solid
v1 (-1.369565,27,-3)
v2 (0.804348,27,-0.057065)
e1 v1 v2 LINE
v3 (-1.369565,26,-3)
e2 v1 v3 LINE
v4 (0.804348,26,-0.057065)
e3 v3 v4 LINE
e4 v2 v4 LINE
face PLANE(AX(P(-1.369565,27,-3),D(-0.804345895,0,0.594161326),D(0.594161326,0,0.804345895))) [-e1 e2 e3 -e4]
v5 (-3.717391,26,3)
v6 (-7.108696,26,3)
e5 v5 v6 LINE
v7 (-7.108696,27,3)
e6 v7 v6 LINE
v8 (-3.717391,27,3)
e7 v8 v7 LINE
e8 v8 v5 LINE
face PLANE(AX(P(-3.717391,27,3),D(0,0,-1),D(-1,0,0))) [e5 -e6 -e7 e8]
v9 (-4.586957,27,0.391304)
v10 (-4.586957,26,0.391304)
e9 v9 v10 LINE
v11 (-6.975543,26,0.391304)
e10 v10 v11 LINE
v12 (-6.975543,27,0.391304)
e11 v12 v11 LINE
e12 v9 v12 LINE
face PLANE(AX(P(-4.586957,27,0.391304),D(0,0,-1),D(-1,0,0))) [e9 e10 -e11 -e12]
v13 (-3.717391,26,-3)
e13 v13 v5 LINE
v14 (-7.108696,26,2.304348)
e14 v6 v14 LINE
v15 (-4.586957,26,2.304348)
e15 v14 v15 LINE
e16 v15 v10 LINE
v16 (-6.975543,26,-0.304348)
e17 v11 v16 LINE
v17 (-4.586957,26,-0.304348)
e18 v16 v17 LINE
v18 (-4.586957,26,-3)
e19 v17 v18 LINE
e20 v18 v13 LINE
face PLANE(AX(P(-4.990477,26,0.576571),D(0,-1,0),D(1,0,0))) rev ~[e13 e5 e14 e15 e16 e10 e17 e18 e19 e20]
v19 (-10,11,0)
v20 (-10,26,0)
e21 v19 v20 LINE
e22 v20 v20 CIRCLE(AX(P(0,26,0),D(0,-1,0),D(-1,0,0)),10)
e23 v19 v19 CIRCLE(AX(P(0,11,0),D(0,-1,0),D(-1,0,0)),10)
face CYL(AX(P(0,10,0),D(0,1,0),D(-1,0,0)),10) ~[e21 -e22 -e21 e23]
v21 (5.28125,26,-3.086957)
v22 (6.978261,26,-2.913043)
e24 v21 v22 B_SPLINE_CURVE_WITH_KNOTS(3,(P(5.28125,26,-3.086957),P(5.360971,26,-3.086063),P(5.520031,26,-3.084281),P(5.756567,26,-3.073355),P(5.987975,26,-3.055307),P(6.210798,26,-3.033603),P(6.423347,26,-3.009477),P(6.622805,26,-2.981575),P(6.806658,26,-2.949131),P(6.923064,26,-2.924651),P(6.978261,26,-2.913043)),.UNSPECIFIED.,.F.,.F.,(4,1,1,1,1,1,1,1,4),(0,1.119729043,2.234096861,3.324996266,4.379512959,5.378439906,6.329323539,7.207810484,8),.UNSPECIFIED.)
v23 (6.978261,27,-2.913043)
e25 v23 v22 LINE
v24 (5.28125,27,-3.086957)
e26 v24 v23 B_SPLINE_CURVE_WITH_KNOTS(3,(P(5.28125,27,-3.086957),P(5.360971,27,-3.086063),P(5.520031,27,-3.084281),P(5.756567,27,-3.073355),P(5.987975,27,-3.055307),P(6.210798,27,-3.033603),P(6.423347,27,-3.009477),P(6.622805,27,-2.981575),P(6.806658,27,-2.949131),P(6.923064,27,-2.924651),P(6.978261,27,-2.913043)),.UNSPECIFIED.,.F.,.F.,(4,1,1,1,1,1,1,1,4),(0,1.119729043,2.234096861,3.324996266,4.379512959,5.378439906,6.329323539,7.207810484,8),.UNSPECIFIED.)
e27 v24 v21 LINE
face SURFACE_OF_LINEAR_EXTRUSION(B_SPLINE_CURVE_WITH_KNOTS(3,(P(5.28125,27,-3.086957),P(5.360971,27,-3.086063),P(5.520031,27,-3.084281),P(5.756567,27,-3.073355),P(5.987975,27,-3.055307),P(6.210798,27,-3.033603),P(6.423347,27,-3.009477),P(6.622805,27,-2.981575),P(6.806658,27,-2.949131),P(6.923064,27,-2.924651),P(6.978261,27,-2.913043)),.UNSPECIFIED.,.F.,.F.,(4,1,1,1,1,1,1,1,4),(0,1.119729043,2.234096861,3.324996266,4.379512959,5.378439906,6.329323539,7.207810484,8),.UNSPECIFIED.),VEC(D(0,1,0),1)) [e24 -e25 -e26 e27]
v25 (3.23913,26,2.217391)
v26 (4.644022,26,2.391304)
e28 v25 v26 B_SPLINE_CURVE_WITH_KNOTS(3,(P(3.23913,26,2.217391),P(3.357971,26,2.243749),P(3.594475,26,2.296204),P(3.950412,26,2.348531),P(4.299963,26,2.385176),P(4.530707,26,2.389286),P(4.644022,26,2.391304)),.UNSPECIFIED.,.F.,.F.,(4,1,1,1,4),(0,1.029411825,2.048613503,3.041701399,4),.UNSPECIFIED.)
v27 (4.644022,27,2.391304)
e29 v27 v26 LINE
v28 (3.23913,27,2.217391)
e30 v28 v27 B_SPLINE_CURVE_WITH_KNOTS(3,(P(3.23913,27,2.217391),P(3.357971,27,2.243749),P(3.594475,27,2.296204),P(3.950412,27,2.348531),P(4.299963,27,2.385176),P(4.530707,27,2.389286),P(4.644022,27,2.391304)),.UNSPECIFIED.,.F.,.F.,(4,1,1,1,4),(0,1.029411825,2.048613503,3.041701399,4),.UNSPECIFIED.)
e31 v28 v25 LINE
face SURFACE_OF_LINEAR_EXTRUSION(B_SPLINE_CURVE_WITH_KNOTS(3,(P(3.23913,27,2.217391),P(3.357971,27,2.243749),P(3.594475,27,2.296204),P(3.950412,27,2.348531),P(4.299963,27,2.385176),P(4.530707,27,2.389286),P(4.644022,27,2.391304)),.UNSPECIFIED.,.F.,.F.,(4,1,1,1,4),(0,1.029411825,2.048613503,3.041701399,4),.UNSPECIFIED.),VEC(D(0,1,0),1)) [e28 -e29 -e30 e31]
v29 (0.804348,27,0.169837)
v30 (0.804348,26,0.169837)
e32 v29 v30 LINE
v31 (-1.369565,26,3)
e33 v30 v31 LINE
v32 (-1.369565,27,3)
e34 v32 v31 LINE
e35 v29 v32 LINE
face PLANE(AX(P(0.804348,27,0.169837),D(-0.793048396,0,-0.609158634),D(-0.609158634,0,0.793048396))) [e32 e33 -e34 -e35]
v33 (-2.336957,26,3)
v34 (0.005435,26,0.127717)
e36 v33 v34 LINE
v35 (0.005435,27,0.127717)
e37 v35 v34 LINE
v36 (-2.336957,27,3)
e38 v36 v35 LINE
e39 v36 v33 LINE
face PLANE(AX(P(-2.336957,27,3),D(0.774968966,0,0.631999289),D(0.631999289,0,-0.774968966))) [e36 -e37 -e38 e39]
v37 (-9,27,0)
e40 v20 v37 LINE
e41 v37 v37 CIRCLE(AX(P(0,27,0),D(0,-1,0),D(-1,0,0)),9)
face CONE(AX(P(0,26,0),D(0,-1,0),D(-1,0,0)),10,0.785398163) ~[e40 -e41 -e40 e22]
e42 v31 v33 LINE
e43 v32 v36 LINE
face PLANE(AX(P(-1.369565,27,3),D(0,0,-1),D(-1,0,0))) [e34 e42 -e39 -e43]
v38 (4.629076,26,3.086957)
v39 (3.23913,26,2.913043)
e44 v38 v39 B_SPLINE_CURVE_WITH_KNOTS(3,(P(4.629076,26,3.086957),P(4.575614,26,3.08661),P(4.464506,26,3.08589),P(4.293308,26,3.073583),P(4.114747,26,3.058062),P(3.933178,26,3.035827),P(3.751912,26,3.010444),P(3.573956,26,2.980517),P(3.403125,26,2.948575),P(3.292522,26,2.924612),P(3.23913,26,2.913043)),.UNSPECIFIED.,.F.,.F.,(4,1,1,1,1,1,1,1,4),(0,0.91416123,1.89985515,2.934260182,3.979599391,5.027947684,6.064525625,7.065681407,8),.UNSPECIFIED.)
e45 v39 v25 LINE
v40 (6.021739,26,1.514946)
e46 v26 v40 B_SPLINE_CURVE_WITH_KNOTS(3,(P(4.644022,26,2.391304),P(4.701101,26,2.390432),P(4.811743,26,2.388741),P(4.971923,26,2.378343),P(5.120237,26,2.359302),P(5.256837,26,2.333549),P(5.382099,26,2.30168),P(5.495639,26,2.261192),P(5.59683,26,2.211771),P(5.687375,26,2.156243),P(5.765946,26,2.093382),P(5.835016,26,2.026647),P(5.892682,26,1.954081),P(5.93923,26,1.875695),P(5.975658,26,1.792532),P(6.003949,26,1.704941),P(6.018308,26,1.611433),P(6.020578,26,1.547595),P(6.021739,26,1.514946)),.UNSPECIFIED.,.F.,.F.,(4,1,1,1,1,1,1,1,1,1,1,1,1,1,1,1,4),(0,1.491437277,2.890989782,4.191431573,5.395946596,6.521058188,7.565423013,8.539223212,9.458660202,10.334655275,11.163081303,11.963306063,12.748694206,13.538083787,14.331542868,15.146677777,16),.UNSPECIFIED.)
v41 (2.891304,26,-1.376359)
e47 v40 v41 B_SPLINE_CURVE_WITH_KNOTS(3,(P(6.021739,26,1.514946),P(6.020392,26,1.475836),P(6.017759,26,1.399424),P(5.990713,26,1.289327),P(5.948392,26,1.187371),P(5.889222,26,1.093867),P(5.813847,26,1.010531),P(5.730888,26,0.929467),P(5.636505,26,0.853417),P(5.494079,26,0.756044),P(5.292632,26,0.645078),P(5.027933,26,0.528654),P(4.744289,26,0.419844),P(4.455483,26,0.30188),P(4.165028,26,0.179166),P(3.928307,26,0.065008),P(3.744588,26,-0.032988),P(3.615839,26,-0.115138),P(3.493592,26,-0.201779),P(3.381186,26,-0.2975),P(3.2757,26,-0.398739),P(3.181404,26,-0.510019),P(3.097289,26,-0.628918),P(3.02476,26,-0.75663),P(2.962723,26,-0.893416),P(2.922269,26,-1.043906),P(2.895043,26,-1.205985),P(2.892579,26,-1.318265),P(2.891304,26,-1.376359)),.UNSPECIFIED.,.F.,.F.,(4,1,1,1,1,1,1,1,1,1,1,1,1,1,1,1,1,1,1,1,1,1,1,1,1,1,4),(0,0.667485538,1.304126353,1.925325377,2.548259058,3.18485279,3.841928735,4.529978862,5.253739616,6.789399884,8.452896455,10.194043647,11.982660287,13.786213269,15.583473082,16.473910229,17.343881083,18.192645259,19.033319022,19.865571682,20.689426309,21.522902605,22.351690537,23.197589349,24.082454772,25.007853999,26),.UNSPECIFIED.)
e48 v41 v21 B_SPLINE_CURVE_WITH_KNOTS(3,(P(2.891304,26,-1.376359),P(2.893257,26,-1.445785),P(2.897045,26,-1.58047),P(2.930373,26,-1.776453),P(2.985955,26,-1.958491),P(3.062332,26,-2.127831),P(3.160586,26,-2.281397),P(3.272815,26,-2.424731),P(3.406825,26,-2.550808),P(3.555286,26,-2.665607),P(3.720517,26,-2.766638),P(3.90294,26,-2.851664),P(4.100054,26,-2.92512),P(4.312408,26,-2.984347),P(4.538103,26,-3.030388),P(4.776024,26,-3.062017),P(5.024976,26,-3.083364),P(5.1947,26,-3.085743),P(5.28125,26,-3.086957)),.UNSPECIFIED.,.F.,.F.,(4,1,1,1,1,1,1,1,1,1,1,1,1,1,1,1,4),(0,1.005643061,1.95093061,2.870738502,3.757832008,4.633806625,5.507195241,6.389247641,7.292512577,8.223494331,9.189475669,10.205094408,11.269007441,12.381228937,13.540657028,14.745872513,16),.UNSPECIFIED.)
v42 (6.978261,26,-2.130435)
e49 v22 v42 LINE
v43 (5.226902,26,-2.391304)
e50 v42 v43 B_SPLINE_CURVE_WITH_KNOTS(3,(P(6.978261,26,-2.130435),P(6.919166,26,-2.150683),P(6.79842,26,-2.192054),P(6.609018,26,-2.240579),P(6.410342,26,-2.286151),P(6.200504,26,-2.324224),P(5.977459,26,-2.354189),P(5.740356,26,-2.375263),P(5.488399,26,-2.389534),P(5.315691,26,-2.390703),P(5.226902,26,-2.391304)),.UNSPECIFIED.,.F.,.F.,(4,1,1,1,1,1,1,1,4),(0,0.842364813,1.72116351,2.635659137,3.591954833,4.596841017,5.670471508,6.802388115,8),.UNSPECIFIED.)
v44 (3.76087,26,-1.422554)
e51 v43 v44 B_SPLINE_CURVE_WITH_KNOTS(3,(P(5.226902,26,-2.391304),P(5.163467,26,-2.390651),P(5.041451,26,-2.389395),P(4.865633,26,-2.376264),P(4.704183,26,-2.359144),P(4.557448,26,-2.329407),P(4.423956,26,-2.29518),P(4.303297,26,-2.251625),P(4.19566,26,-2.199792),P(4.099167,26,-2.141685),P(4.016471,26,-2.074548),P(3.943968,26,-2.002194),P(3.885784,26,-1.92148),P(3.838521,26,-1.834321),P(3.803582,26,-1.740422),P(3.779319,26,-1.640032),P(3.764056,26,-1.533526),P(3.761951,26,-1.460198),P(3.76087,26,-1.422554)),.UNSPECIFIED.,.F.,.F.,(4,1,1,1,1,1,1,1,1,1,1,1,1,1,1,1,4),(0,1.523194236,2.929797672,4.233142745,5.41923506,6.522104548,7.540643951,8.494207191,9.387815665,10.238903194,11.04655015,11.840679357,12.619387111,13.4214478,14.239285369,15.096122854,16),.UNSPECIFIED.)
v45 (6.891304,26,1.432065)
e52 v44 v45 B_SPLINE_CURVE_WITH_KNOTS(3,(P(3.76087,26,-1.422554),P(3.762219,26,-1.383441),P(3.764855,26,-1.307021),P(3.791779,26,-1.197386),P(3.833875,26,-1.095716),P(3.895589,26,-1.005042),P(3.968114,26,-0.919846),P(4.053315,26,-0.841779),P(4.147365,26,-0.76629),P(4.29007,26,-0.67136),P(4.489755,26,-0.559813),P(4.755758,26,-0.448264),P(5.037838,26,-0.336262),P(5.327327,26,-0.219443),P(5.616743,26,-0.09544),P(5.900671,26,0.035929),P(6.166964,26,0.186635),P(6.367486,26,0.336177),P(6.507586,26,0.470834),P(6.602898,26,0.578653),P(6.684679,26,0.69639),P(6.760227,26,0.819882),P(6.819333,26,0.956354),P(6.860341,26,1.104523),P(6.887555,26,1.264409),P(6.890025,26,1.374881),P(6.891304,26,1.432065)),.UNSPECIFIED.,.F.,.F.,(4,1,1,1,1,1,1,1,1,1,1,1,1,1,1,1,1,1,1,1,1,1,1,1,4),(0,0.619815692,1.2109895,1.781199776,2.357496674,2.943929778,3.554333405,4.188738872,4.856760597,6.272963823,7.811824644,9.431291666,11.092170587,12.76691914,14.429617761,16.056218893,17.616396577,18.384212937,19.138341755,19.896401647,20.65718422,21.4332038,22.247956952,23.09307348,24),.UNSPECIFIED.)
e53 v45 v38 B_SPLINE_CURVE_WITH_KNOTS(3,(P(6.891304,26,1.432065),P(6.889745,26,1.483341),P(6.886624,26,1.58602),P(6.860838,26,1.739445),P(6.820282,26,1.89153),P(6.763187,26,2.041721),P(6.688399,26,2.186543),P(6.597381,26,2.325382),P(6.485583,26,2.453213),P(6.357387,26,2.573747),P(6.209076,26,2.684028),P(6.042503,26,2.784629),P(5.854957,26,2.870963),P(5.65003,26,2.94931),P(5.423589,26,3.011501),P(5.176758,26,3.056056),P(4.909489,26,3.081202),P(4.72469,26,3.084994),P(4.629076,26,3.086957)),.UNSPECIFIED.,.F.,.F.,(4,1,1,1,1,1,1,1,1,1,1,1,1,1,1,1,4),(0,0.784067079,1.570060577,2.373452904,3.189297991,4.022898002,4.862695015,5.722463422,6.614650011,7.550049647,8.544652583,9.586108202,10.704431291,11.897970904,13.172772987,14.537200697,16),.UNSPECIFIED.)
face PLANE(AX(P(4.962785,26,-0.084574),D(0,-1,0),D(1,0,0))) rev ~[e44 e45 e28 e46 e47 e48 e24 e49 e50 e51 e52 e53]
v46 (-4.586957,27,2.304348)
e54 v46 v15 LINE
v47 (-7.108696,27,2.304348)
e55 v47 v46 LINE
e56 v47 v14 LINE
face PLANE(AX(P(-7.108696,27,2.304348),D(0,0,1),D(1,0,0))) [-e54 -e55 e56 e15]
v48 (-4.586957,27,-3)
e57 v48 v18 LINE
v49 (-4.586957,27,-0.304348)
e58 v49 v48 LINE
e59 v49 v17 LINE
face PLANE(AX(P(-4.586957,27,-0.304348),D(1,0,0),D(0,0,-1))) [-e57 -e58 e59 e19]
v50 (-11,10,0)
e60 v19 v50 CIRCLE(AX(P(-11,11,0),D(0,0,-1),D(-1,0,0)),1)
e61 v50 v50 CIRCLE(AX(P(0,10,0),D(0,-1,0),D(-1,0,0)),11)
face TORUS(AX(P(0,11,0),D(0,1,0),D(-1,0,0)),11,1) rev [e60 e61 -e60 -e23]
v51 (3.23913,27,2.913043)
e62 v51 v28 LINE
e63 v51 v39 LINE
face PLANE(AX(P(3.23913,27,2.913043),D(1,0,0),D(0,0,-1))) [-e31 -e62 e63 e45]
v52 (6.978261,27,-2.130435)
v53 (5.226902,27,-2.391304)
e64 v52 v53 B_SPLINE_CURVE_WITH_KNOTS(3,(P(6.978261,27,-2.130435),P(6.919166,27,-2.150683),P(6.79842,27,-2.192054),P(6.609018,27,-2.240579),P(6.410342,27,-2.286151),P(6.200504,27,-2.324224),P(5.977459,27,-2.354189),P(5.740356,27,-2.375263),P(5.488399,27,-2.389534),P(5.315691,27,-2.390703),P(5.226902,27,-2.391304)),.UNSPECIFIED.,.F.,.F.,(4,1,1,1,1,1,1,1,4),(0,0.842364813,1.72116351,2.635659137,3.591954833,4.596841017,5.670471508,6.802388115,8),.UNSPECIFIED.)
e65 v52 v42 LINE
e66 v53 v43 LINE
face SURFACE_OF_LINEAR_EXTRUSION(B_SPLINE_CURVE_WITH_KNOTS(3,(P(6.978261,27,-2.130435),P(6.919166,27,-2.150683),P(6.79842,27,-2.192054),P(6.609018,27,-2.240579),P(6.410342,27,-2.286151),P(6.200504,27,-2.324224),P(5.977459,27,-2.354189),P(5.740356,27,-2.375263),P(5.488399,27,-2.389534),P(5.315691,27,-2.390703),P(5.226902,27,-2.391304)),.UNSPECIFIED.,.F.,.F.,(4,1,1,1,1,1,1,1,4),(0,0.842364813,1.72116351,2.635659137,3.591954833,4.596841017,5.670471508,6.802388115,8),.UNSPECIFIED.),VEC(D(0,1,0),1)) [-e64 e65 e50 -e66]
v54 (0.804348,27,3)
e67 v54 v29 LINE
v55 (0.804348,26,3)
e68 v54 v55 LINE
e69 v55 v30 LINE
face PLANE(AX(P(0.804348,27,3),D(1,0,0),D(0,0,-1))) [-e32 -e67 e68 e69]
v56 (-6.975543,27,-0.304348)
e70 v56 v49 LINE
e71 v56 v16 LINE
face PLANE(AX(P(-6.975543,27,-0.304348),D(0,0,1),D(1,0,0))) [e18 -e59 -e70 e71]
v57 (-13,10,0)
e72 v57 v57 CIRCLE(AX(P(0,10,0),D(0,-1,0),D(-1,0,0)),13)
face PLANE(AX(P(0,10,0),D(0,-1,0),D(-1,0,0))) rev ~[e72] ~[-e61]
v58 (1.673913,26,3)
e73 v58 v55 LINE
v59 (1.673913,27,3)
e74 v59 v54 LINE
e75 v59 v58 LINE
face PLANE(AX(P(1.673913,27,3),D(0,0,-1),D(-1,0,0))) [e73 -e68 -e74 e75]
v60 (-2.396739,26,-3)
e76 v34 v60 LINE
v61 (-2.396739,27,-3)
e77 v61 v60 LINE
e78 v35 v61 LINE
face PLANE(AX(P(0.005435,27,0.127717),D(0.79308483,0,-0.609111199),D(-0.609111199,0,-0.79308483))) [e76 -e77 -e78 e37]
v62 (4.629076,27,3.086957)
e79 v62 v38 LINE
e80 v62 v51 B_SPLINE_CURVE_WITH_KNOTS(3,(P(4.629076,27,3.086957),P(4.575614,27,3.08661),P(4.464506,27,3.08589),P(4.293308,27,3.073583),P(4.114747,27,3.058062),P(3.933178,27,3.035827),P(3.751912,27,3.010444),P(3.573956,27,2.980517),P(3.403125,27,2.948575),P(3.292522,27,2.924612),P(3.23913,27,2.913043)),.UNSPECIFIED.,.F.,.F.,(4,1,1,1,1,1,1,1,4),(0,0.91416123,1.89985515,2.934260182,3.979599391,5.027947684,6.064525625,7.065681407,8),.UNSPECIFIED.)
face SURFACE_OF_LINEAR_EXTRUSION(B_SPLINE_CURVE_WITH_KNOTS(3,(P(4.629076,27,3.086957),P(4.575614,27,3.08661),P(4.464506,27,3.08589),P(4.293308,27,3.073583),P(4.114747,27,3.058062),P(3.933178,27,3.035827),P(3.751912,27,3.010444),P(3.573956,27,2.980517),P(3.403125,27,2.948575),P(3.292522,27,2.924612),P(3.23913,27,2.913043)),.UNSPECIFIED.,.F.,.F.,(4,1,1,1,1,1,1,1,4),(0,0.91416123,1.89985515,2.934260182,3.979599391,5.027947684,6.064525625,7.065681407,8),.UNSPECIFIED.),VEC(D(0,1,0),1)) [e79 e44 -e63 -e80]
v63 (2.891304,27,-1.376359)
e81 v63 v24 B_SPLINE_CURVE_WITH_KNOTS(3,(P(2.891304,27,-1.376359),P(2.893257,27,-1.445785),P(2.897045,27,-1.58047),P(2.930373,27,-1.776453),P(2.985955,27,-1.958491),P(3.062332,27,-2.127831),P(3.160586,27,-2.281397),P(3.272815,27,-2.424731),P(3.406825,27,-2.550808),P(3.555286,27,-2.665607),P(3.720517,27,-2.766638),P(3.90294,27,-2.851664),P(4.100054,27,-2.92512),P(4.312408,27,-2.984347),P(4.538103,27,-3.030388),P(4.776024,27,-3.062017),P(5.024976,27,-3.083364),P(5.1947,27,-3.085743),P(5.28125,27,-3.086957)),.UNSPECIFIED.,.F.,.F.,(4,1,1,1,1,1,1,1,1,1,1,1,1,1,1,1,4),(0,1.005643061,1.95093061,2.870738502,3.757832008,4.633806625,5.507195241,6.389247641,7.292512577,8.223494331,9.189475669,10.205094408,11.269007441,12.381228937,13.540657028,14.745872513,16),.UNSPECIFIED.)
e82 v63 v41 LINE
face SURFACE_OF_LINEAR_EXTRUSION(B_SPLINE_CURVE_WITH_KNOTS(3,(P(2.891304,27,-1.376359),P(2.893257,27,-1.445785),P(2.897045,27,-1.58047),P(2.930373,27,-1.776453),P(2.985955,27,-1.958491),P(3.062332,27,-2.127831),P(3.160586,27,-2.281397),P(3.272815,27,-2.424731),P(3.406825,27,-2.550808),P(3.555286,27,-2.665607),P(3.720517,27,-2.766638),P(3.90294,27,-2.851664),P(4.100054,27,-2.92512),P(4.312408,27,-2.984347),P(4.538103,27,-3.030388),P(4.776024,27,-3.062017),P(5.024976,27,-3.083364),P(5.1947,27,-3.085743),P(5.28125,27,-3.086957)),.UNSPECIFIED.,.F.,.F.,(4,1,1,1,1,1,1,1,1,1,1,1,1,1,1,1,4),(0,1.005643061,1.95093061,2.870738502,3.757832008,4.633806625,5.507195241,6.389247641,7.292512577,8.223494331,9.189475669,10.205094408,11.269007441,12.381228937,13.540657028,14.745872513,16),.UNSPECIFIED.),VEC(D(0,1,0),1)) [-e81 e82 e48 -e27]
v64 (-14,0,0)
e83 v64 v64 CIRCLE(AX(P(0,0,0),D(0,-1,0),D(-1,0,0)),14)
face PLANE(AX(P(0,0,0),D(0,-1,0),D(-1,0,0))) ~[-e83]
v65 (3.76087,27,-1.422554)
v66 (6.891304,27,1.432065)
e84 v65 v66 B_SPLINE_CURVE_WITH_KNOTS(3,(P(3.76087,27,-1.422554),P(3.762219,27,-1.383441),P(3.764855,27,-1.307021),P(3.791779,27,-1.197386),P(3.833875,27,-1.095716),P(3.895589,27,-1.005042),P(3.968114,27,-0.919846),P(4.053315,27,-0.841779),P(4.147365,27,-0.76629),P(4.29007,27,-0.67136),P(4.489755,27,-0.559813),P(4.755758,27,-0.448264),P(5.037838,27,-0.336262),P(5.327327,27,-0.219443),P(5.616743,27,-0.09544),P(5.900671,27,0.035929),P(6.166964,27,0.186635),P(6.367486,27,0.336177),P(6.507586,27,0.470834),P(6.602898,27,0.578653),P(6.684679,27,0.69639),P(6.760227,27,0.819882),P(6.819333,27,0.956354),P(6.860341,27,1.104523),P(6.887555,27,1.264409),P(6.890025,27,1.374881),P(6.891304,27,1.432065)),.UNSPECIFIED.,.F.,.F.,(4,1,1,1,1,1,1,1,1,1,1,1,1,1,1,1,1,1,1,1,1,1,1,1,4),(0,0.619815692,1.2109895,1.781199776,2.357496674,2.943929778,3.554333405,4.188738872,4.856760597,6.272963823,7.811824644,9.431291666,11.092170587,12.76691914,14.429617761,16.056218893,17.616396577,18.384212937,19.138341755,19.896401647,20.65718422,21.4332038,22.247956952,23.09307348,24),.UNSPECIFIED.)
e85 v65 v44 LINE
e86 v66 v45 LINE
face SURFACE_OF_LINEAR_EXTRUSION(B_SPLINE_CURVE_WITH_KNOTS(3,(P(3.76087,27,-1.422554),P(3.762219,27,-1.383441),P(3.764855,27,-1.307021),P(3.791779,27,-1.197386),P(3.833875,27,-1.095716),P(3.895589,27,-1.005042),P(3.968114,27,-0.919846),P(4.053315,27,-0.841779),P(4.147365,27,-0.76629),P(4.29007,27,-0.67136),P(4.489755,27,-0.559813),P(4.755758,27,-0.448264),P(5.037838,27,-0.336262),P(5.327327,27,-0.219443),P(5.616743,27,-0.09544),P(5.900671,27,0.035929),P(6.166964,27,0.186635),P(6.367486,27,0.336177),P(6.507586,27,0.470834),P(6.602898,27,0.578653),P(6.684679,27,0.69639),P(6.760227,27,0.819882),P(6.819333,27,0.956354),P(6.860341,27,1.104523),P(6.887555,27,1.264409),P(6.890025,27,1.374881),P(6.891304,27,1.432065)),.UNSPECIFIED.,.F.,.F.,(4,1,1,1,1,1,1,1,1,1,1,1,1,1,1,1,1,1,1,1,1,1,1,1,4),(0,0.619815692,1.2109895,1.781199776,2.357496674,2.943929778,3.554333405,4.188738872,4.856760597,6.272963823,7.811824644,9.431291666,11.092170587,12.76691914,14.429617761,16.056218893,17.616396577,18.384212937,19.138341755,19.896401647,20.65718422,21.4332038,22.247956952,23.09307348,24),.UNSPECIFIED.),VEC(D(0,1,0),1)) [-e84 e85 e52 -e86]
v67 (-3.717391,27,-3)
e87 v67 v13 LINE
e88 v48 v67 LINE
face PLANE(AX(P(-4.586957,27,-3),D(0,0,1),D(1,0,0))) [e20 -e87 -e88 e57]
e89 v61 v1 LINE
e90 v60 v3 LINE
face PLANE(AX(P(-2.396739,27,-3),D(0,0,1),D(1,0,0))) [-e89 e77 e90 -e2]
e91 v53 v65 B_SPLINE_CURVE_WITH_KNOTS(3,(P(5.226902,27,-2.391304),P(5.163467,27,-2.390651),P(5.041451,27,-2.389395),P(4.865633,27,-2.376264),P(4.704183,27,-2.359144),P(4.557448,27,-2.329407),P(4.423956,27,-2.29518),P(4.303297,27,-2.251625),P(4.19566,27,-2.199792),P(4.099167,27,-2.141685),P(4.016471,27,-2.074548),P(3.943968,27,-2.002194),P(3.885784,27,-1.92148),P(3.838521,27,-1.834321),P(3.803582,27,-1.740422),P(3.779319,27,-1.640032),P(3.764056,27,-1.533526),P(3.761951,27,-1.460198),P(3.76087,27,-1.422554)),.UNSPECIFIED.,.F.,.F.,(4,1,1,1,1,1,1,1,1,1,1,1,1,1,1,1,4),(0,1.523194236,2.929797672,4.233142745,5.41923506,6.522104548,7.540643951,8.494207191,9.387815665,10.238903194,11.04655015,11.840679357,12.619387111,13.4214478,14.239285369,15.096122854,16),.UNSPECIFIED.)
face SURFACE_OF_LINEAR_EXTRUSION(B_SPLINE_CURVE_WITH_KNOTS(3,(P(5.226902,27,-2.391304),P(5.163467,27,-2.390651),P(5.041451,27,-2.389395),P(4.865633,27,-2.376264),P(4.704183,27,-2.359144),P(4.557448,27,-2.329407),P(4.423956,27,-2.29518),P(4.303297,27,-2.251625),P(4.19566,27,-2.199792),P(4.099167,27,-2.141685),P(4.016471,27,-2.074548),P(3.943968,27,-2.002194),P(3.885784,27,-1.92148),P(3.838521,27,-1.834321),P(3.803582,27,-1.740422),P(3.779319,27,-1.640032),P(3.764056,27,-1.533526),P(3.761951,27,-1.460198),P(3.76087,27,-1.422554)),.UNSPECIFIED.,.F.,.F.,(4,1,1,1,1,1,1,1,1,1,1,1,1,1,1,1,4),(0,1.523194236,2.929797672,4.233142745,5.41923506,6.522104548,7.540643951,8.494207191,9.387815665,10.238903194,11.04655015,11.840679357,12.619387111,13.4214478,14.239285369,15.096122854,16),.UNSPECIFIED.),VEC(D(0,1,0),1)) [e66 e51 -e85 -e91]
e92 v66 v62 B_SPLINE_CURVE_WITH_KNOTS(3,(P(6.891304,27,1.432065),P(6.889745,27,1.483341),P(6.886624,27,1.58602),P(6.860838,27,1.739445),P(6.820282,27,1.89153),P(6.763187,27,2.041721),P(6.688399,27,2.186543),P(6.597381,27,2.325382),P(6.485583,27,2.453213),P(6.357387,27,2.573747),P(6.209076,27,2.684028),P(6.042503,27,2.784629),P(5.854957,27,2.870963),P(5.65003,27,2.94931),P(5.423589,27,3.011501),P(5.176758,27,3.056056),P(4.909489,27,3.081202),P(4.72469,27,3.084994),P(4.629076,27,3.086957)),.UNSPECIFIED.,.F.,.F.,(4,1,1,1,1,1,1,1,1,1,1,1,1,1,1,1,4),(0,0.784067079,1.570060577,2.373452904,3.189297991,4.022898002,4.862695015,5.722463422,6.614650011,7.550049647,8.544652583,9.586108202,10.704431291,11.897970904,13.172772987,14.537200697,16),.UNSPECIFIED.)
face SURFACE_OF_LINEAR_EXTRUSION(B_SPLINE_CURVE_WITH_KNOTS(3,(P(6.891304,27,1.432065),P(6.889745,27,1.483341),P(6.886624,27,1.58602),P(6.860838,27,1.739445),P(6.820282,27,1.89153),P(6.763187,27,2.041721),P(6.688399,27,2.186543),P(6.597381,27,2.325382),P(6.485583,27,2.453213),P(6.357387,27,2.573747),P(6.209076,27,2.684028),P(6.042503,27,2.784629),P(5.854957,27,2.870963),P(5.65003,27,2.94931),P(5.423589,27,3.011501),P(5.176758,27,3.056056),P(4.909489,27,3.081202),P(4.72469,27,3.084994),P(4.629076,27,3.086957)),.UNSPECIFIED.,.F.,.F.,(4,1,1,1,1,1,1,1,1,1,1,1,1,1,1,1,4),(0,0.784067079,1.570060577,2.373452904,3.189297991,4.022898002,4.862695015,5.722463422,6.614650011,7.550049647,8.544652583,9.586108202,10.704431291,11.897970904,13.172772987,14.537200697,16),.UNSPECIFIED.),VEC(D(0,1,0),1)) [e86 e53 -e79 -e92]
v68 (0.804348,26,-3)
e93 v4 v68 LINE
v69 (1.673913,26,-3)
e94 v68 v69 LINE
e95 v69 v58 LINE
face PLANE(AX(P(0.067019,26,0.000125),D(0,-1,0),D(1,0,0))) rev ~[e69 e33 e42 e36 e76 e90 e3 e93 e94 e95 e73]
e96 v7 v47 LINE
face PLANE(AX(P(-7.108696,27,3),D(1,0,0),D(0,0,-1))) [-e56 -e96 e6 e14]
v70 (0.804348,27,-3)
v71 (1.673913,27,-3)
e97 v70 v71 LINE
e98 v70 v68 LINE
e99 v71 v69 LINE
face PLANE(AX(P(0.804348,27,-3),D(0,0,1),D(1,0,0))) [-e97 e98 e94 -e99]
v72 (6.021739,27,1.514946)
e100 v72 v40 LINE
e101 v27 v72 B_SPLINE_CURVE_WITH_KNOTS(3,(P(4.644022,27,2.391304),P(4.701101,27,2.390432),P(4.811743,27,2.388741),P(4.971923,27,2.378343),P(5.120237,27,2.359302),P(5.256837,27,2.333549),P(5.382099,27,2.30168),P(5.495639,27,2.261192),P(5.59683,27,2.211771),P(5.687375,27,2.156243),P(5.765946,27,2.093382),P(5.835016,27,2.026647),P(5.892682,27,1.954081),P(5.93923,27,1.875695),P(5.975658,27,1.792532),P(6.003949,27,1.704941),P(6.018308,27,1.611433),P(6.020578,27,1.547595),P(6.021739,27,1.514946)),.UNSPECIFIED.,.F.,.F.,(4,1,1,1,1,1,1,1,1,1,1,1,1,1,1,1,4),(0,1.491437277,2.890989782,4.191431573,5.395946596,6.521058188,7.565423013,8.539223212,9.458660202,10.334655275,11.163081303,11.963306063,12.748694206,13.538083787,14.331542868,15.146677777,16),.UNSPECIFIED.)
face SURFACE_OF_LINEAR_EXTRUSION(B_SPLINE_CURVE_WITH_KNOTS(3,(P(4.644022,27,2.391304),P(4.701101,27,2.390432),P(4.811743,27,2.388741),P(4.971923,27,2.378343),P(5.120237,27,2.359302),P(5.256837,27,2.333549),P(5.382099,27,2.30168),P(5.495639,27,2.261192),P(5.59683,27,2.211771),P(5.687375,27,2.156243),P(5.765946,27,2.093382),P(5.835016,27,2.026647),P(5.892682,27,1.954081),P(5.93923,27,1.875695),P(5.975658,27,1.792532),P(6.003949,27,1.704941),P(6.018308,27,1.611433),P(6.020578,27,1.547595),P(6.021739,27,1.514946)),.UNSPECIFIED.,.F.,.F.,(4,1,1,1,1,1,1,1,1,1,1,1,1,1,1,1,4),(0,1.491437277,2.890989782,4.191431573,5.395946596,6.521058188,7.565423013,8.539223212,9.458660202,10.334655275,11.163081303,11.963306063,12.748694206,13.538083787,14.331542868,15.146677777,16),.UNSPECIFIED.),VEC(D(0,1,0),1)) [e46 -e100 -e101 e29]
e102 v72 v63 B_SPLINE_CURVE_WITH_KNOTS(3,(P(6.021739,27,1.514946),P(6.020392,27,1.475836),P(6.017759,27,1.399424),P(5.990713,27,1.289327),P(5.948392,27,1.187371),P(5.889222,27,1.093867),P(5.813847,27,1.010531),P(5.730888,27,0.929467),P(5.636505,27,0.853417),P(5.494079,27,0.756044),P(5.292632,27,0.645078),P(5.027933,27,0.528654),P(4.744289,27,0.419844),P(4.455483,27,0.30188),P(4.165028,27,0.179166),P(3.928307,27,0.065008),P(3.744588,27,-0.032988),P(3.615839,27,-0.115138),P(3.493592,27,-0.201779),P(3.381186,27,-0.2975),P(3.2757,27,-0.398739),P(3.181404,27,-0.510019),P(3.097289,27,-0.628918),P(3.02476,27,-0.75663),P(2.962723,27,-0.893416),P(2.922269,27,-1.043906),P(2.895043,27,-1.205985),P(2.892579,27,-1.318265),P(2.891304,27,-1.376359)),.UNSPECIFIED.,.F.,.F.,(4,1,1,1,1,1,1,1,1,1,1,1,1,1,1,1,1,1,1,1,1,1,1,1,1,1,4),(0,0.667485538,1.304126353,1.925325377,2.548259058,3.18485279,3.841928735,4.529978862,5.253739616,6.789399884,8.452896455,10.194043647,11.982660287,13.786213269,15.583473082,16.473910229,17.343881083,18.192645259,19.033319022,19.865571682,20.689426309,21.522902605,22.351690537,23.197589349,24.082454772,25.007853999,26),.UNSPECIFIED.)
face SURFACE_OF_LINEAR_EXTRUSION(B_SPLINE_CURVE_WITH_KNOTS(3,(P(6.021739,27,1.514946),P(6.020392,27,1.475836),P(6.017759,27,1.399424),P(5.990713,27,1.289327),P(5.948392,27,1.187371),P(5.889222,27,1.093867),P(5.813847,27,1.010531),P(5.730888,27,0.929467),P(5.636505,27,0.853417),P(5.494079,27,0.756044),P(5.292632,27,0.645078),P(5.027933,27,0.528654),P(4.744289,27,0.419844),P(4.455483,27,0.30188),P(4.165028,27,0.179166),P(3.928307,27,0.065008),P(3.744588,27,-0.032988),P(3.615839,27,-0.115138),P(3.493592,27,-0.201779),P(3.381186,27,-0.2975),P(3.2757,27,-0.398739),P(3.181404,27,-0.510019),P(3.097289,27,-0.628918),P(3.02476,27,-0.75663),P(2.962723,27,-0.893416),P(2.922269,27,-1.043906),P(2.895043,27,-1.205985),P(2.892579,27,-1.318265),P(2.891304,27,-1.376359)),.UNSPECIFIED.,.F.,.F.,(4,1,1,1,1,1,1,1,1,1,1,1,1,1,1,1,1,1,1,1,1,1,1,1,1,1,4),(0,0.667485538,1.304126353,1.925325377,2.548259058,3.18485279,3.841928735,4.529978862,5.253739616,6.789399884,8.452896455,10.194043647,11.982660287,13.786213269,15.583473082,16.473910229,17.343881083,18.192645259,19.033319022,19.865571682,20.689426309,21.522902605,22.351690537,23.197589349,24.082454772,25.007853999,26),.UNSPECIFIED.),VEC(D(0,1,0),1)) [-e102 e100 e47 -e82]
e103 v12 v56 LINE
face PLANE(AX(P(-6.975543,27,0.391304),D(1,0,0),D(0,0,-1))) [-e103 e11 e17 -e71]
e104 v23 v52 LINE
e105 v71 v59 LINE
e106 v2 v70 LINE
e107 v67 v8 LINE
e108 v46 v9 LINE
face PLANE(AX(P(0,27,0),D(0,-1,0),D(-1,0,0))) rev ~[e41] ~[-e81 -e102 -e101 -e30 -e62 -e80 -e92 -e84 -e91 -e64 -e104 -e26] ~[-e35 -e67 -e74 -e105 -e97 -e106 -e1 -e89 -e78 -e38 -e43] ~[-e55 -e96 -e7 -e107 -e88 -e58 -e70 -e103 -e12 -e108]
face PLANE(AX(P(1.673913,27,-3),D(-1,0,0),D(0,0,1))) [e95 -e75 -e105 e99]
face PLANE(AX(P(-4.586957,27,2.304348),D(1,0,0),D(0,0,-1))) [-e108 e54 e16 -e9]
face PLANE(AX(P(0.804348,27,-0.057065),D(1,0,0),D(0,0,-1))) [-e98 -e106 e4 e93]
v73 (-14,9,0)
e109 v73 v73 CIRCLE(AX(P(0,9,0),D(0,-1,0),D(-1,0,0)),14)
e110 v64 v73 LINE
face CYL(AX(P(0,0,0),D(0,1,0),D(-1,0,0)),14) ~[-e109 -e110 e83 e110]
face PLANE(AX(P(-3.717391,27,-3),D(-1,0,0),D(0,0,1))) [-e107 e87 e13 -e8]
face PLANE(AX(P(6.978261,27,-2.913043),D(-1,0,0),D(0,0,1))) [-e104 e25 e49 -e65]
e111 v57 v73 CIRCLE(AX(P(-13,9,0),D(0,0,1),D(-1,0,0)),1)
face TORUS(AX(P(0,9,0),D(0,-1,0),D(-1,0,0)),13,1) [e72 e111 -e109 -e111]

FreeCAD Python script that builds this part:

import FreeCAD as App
import Part
import Sketcher
Q = App.Units.Quantity


def edges_at(feature, points):
    """Names of the edges that pass closest to the given points."""
    edges = feature.Shape.Edges
    near = lambda p: min(range(len(edges)), key=lambda i: edges[i].distToShape(Part.Vertex(*p))[0])
    return sorted({f"Edge{near(p) + 1}" for p in points})

doc = App.newDocument("Part")
body = doc.addObject("PartDesign::Body", "Body")

# Sketch on XY plane
sketch1 = body.newObject("Sketcher::SketchObject", "Sketch")
sketch1.AttachmentSupport = (doc.getObject("XY_Plane"), [""])
sketch1.MapMode = "FlatFace"
sketch1.addGeometry(Part.LineSegment(App.Vector(-14, 10, 0), App.Vector(-14, 0, 0)), False)
sketch1.addGeometry(Part.LineSegment(App.Vector(-14, 0, 0), App.Vector(0, 0, 0)), False)
sketch1.addGeometry(Part.LineSegment(App.Vector(0, 0, 0), App.Vector(0, 27, 0)), False)
sketch1.addGeometry(Part.LineSegment(App.Vector(0, 27, 0), App.Vector(-10, 27, 0)), False)
sketch1.addGeometry(Part.LineSegment(App.Vector(-10, 27, 0), App.Vector(-10, 10, 0)), False)
sketch1.addGeometry(Part.LineSegment(App.Vector(-10, 10, 0), App.Vector(-14, 10, 0)), False)
sketch1.addConstraint(Sketcher.Constraint("Coincident", 0, 2, 1, 1))
sketch1.addConstraint(Sketcher.Constraint("Coincident", 1, 2, 2, 1))
sketch1.addConstraint(Sketcher.Constraint("Coincident", 2, 2, 3, 1))
sketch1.addConstraint(Sketcher.Constraint("Coincident", 3, 2, 4, 1))
sketch1.addConstraint(Sketcher.Constraint("Coincident", 4, 2, 5, 1))
sketch1.addConstraint(Sketcher.Constraint("Coincident", 5, 2, 0, 1))
sketch1.addConstraint(Sketcher.Constraint("Vertical", 0))
sketch1.addConstraint(Sketcher.Constraint("Horizontal", 1))
sketch1.addConstraint(Sketcher.Constraint("Vertical", 2))
sketch1.addConstraint(Sketcher.Constraint("Horizontal", 3))
sketch1.addConstraint(Sketcher.Constraint("Vertical", 4))
sketch1.addConstraint(Sketcher.Constraint("Horizontal", 5))
sketch1.addConstraint(Sketcher.Constraint("Coincident", 1, 2, -1, 1))
sketch1.addConstraint(Sketcher.Constraint("Equal", 3, 0))
sketch1.addConstraint(Sketcher.Constraint("DistanceX", 1, 1, 1, 2, Q("14 mm")))
sketch1.addConstraint(Sketcher.Constraint("DistanceX", 3, 2, 3, 1, Q("10 mm")))
sketch1.addConstraint(Sketcher.Constraint("DistanceY", 2, 1, 2, 2, Q("27 mm")))
revolution = body.newObject("PartDesign::Revolution", "Revolution")
revolution.Profile = sketch1
revolution.ReferenceAxis = (sketch1, ["V_Axis"])
revolution.Angle = 360
doc.recompute()

chamfer = body.newObject("PartDesign::Chamfer", "Chamfer")
chamfer.Base = (revolution, edges_at(revolution, [(10, 27, 0)]))
chamfer.Size = 1
doc.recompute()

fillet = body.newObject("PartDesign::Fillet", "Fillet")
fillet.Base = (chamfer, edges_at(chamfer, [(10, 10, 0)]))
fillet.Radius = 1
doc.recompute()

fillet2 = body.newObject("PartDesign::Fillet", "Fillet001")
fillet2.Base = (fillet, edges_at(fillet, [(14, 10, 0)]))
fillet2.Radius = 1

# Sketch on XZ plane
sketch2 = body.newObject("Sketcher::SketchObject", "Sketch001")
sketch2.AttachmentSupport = (doc.getObject("XZ_Plane"), [""])
sketch2.MapMode = "FlatFace"
sketch2.AttachmentOffset = App.Placement(App.Vector(0, 0, -27), App.Rotation())
sketch2.addGeometry(Part.BSplineCurve([App.Vector(2.891304, -1.376359, 0), App.Vector(2.893257, -1.445785, 0), App.Vector(2.897045, -1.58047, 0), App.Vector(2.930373, -1.776453, 0), App.Vector(2.985955, -1.958491, 0), App.Vector(3.062332, -2.127831, 0), App.Vector(3.160586, -2.281397, 0), App.Vector(3.272815, -2.424731, 0), App.Vector(3.406825, -2.550808, 0), App.Vector(3.555286, -2.665607, 0), App.Vector(3.720517, -2.766638, 0), App.Vector(3.90294, -2.851664, 0), App.Vector(4.100054, -2.92512, 0), App.Vector(4.312408, -2.984347, 0), App.Vector(4.538103, -3.030388, 0), App.Vector(4.776024, -3.062017, 0), App.Vector(5.024976, -3.083364, 0), App.Vector(5.1947, -3.085743, 0), App.Vector(5.28125, -3.086957, 0)], [4, 1, 1, 1, 1, 1, 1, 1, 1, 1, 1, 1, 1, 1, 1, 1, 4], [0, 1.005643061, 1.95093061, 2.870738502, 3.757832008, 4.633806625, 5.507195241, 6.389247641, 7.292512577, 8.223494331, 9.189475669, 10.205094408, 11.269007441, 12.381228937, 13.540657028, 14.745872513, 16], False, 3, [1, 1, 1, 1, 1, 1, 1, 1, 1, 1, 1, 1, 1, 1, 1, 1, 1, 1, 1], False), False)
sketch2.addGeometry(Part.BSplineCurve([App.Vector(6.021739, 1.514946, 0), App.Vector(6.020392, 1.475836, 0), App.Vector(6.017759, 1.399424, 0), App.Vector(5.990713, 1.289327, 0), App.Vector(5.948392, 1.187371, 0), App.Vector(5.889222, 1.093867, 0), App.Vector(5.813847, 1.010531, 0), App.Vector(5.730888, 0.929467, 0), App.Vector(5.636505, 0.853417, 0), App.Vector(5.494079, 0.756044, 0), App.Vector(5.292632, 0.645078, 0), App.Vector(5.027933, 0.528654, 0), App.Vector(4.744289, 0.419844, 0), App.Vector(4.455483, 0.30188, 0), App.Vector(4.165028, 0.179166, 0), App.Vector(3.928307, 0.065008, 0), App.Vector(3.744588, -0.032988, 0), App.Vector(3.615839, -0.115138, 0), App.Vector(3.493592, -0.201779, 0), App.Vector(3.381186, -0.2975, 0), App.Vector(3.2757, -0.398739, 0), App.Vector(3.181404, -0.510019, 0), App.Vector(3.097289, -0.628918, 0), App.Vector(3.02476, -0.75663, 0), App.Vector(2.962723, -0.893416, 0), App.Vector(2.922269, -1.043906, 0), App.Vector(2.895043, -1.205985, 0), App.Vector(2.892579, -1.318265, 0), App.Vector(2.891304, -1.376359, 0)], [4, 1, 1, 1, 1, 1, 1, 1, 1, 1, 1, 1, 1, 1, 1, 1, 1, 1, 1, 1, 1, 1, 1, 1, 1, 1, 4], [0, 0.667485538, 1.304126353, 1.925325377, 2.548259058, 3.18485279, 3.841928735, 4.529978862, 5.253739616, 6.789399884, 8.452896455, 10.194043647, 11.982660287, 13.786213269, 15.583473082, 16.473910229, 17.343881083, 18.192645259, 19.033319022, 19.865571682, 20.689426309, 21.522902605, 22.351690537, 23.197589349, 24.082454772, 25.007853999, 26], False, 3, [1, 1, 1, 1, 1, 1, 1, 1, 1, 1, 1, 1, 1, 1, 1, 1, 1, 1, 1, 1, 1, 1, 1, 1, 1, 1, 1, 1, 1], False), False)
sketch2.addGeometry(Part.BSplineCurve([App.Vector(4.644022, 2.391304, 0), App.Vector(4.701101, 2.390432, 0), App.Vector(4.811743, 2.388741, 0), App.Vector(4.971923, 2.378343, 0), App.Vector(5.120237, 2.359302, 0), App.Vector(5.256837, 2.333549, 0), App.Vector(5.382099, 2.30168, 0), App.Vector(5.495639, 2.261192, 0), App.Vector(5.59683, 2.211771, 0), App.Vector(5.687375, 2.156243, 0), App.Vector(5.765946, 2.093382, 0), App.Vector(5.835016, 2.026647, 0), App.Vector(5.892682, 1.954081, 0), App.Vector(5.93923, 1.875695, 0), App.Vector(5.975658, 1.792532, 0), App.Vector(6.003949, 1.704941, 0), App.Vector(6.018308, 1.611433, 0), App.Vector(6.020578, 1.547595, 0), App.Vector(6.021739, 1.514946, 0)], [4, 1, 1, 1, 1, 1, 1, 1, 1, 1, 1, 1, 1, 1, 1, 1, 4], [0, 1.491437277, 2.890989782, 4.191431573, 5.395946596, 6.521058188, 7.565423013, 8.539223212, 9.458660202, 10.334655275, 11.163081303, 11.963306063, 12.748694206, 13.538083787, 14.331542868, 15.146677777, 16], False, 3, [1, 1, 1, 1, 1, 1, 1, 1, 1, 1, 1, 1, 1, 1, 1, 1, 1, 1, 1], False), False)
sketch2.addGeometry(Part.BSplineCurve([App.Vector(3.23913, 2.217391, 0), App.Vector(3.357971, 2.243749, 0), App.Vector(3.594475, 2.296204, 0), App.Vector(3.950412, 2.348531, 0), App.Vector(4.299963, 2.385176, 0), App.Vector(4.530707, 2.389286, 0), App.Vector(4.644022, 2.391304, 0)], [4, 1, 1, 1, 4], [0, 1.029411825, 2.048613503, 3.041701399, 4], False, 3, [1, 1, 1, 1, 1, 1, 1], False), False)
sketch2.addGeometry(Part.LineSegment(App.Vector(3.23913, 2.217391, 0), App.Vector(3.23913, 2.913043, 0)), False)
sketch2.addGeometry(Part.BSplineCurve([App.Vector(4.629076, 3.086957, 0), App.Vector(4.575614, 3.08661, 0), App.Vector(4.464506, 3.08589, 0), App.Vector(4.293308, 3.073583, 0), App.Vector(4.114747, 3.058062, 0), App.Vector(3.933178, 3.035827, 0), App.Vector(3.751912, 3.010444, 0), App.Vector(3.573956, 2.980517, 0), App.Vector(3.403125, 2.948575, 0), App.Vector(3.292522, 2.924612, 0), App.Vector(3.23913, 2.913043, 0)], [4, 1, 1, 1, 1, 1, 1, 1, 4], [0, 0.91416123, 1.89985515, 2.934260182, 3.979599391, 5.027947684, 6.064525625, 7.065681407, 8], False, 3, [1, 1, 1, 1, 1, 1, 1, 1, 1, 1, 1], False), False)
sketch2.addGeometry(Part.BSplineCurve([App.Vector(6.891304, 1.432065, 0), App.Vector(6.889745, 1.483341, 0), App.Vector(6.886624, 1.58602, 0), App.Vector(6.860838, 1.739445, 0), App.Vector(6.820282, 1.89153, 0), App.Vector(6.763187, 2.041721, 0), App.Vector(6.688399, 2.186543, 0), App.Vector(6.597381, 2.325382, 0), App.Vector(6.485583, 2.453213, 0), App.Vector(6.357387, 2.573747, 0), App.Vector(6.209076, 2.684028, 0), App.Vector(6.042503, 2.784629, 0), App.Vector(5.854957, 2.870963, 0), App.Vector(5.65003, 2.94931, 0), App.Vector(5.423589, 3.011501, 0), App.Vector(5.176758, 3.056056, 0), App.Vector(4.909489, 3.081202, 0), App.Vector(4.72469, 3.084994, 0), App.Vector(4.629076, 3.086957, 0)], [4, 1, 1, 1, 1, 1, 1, 1, 1, 1, 1, 1, 1, 1, 1, 1, 4], [0, 0.784067079, 1.570060577, 2.373452904, 3.189297991, 4.022898002, 4.862695015, 5.722463422, 6.614650011, 7.550049647, 8.544652583, 9.586108202, 10.704431291, 11.897970904, 13.172772987, 14.537200697, 16], False, 3, [1, 1, 1, 1, 1, 1, 1, 1, 1, 1, 1, 1, 1, 1, 1, 1, 1, 1, 1], False), False)
sketch2.addGeometry(Part.BSplineCurve([App.Vector(3.76087, -1.422554, 0), App.Vector(3.762219, -1.383441, 0), App.Vector(3.764855, -1.307021, 0), App.Vector(3.791779, -1.197386, 0), App.Vector(3.833875, -1.095716, 0), App.Vector(3.895589, -1.005042, 0), App.Vector(3.968114, -0.919846, 0), App.Vector(4.053315, -0.841779, 0), App.Vector(4.147365, -0.76629, 0), App.Vector(4.29007, -0.67136, 0), App.Vector(4.489755, -0.559813, 0), App.Vector(4.755758, -0.448264, 0), App.Vector(5.037838, -0.336262, 0), App.Vector(5.327327, -0.219443, 0), App.Vector(5.616743, -0.09544, 0), App.Vector(5.900671, 0.035929, 0), App.Vector(6.166964, 0.186635, 0), App.Vector(6.367486, 0.336177, 0), App.Vector(6.507586, 0.470834, 0), App.Vector(6.602898, 0.578653, 0), App.Vector(6.684679, 0.69639, 0), App.Vector(6.760227, 0.819882, 0), App.Vector(6.819333, 0.956354, 0), App.Vector(6.860341, 1.104523, 0), App.Vector(6.887555, 1.264409, 0), App.Vector(6.890025, 1.374881, 0), App.Vector(6.891304, 1.432065, 0)], [4, 1, 1, 1, 1, 1, 1, 1, 1, 1, 1, 1, 1, 1, 1, 1, 1, 1, 1, 1, 1, 1, 1, 1, 4], [0, 0.619815692, 1.2109895, 1.781199776, 2.357496674, 2.943929778, 3.554333405, 4.188738872, 4.856760597, 6.272963823, 7.811824644, 9.431291666, 11.092170587, 12.76691914, 14.429617761, 16.056218893, 17.616396577, 18.384212937, 19.138341755, 19.896401647, 20.65718422, 21.4332038, 22.247956952, 23.09307348, 24], False, 3, [1, 1, 1, 1, 1, 1, 1, 1, 1, 1, 1, 1, 1, 1, 1, 1, 1, 1, 1, 1, 1, 1, 1, 1, 1, 1, 1], False), False)
sketch2.addGeometry(Part.BSplineCurve([App.Vector(5.226902, -2.391304, 0), App.Vector(5.163467, -2.390651, 0), App.Vector(5.041451, -2.389395, 0), App.Vector(4.865633, -2.376264, 0), App.Vector(4.704183, -2.359144, 0), App.Vector(4.557448, -2.329407, 0), App.Vector(4.423956, -2.29518, 0), App.Vector(4.303297, -2.251625, 0), App.Vector(4.19566, -2.199792, 0), App.Vector(4.099167, -2.141685, 0), App.Vector(4.016471, -2.074548, 0), App.Vector(3.943968, -2.002194, 0), App.Vector(3.885784, -1.92148, 0), App.Vector(3.838521, -1.834321, 0), App.Vector(3.803582, -1.740422, 0), App.Vector(3.779319, -1.640032, 0), App.Vector(3.764056, -1.533526, 0), App.Vector(3.761951, -1.460198, 0), App.Vector(3.76087, -1.422554, 0)], [4, 1, 1, 1, 1, 1, 1, 1, 1, 1, 1, 1, 1, 1, 1, 1, 4], [0, 1.523194236, 2.929797672, 4.233142745, 5.41923506, 6.522104548, 7.540643951, 8.494207191, 9.387815665, 10.238903194, 11.04655015, 11.840679357, 12.619387111, 13.4214478, 14.239285369, 15.096122854, 16], False, 3, [1, 1, 1, 1, 1, 1, 1, 1, 1, 1, 1, 1, 1, 1, 1, 1, 1, 1, 1], False), False)
sketch2.addGeometry(Part.BSplineCurve([App.Vector(6.978261, -2.130435, 0), App.Vector(6.919166, -2.150683, 0), App.Vector(6.79842, -2.192054, 0), App.Vector(6.609018, -2.240579, 0), App.Vector(6.410342, -2.286151, 0), App.Vector(6.200504, -2.324224, 0), App.Vector(5.977459, -2.354189, 0), App.Vector(5.740356, -2.375263, 0), App.Vector(5.488399, -2.389534, 0), App.Vector(5.315691, -2.390703, 0), App.Vector(5.226902, -2.391304, 0)], [4, 1, 1, 1, 1, 1, 1, 1, 4], [0, 0.842364813, 1.72116351, 2.635659137, 3.591954833, 4.596841017, 5.670471508, 6.802388115, 8], False, 3, [1, 1, 1, 1, 1, 1, 1, 1, 1, 1, 1], False), False)
sketch2.addGeometry(Part.LineSegment(App.Vector(6.978261, -2.130435, 0), App.Vector(6.978261, -2.913043, 0)), False)
sketch2.addGeometry(Part.BSplineCurve([App.Vector(5.28125, -3.086957, 0), App.Vector(5.360971, -3.086063, 0), App.Vector(5.520031, -3.084281, 0), App.Vector(5.756567, -3.073355, 0), App.Vector(5.987975, -3.055307, 0), App.Vector(6.210798, -3.033603, 0), App.Vector(6.423347, -3.009477, 0), App.Vector(6.622805, -2.981575, 0), App.Vector(6.806658, -2.949131, 0), App.Vector(6.923064, -2.924651, 0), App.Vector(6.978261, -2.913043, 0)], [4, 1, 1, 1, 1, 1, 1, 1, 4], [0, 1.119729043, 2.234096861, 3.324996266, 4.379512959, 5.378439906, 6.329323539, 7.207810484, 8], False, 3, [1, 1, 1, 1, 1, 1, 1, 1, 1, 1, 1], False), False)
sketch2.addGeometry(Part.LineSegment(App.Vector(-1.369565, -3, 0), App.Vector(-2.396739, -3, 0)), False)
sketch2.addGeometry(Part.LineSegment(App.Vector(-2.396739, -3, 0), App.Vector(0.005435, 0.127717, 0)), False)
sketch2.addGeometry(Part.LineSegment(App.Vector(0.005435, 0.127717, 0), App.Vector(-2.336957, 3, 0)), False)
sketch2.addGeometry(Part.LineSegment(App.Vector(-2.336957, 3, 0), App.Vector(-1.369565, 3, 0)), False)
sketch2.addGeometry(Part.LineSegment(App.Vector(-1.369565, 3, 0), App.Vector(0.804348, 0.169837, 0)), False)
sketch2.addGeometry(Part.LineSegment(App.Vector(0.804348, 0.169837, 0), App.Vector(0.804348, 3, 0)), False)
sketch2.addGeometry(Part.LineSegment(App.Vector(0.804348, 3, 0), App.Vector(1.673913, 3, 0)), False)
sketch2.addGeometry(Part.LineSegment(App.Vector(1.673913, 3, 0), App.Vector(1.673913, -3, 0)), False)
sketch2.addGeometry(Part.LineSegment(App.Vector(1.673913, -3, 0), App.Vector(0.804348, -3, 0)), False)
sketch2.addGeometry(Part.LineSegment(App.Vector(0.804348, -3, 0), App.Vector(0.804348, -0.057065, 0)), False)
sketch2.addGeometry(Part.LineSegment(App.Vector(0.804348, -0.057065, 0), App.Vector(-1.369565, -3, 0)), False)
sketch2.addGeometry(Part.LineSegment(App.Vector(-4.586957, 2.304348, 0), App.Vector(-7.108696, 2.304348, 0)), False)
sketch2.addGeometry(Part.LineSegment(App.Vector(-7.108696, 2.304348, 0), App.Vector(-7.108696, 3, 0)), False)
sketch2.addGeometry(Part.LineSegment(App.Vector(-7.108696, 3, 0), App.Vector(-3.717391, 3, 0)), False)
sketch2.addGeometry(Part.LineSegment(App.Vector(-3.717391, 3, 0), App.Vector(-3.717391, -3, 0)), False)
sketch2.addGeometry(Part.LineSegment(App.Vector(-3.717391, -3, 0), App.Vector(-4.586957, -3, 0)), False)
sketch2.addGeometry(Part.LineSegment(App.Vector(-4.586957, -3, 0), App.Vector(-4.586957, -0.304348, 0)), False)
sketch2.addGeometry(Part.LineSegment(App.Vector(-4.586957, -0.304348, 0), App.Vector(-6.975543, -0.304348, 0)), False)
sketch2.addGeometry(Part.LineSegment(App.Vector(-6.975543, -0.304348, 0), App.Vector(-6.975543, 0.391304, 0)), False)
sketch2.addGeometry(Part.LineSegment(App.Vector(-6.975543, 0.391304, 0), App.Vector(-4.586957, 0.391304, 0)), False)
sketch2.addGeometry(Part.LineSegment(App.Vector(-4.586957, 0.391304, 0), App.Vector(-4.586957, 2.304348, 0)), False)
sketch2.addConstraint(Sketcher.Constraint("Block", 0))
sketch2.addConstraint(Sketcher.Constraint("Block", 1))
sketch2.addConstraint(Sketcher.Constraint("Block", 2))
sketch2.addConstraint(Sketcher.Constraint("Block", 3))
sketch2.addConstraint(Sketcher.Constraint("Block", 5))
sketch2.addConstraint(Sketcher.Constraint("Block", 6))
sketch2.addConstraint(Sketcher.Constraint("Block", 7))
sketch2.addConstraint(Sketcher.Constraint("Block", 8))
sketch2.addConstraint(Sketcher.Constraint("Block", 9))
sketch2.addConstraint(Sketcher.Constraint("Block", 11))
sketch2.addConstraint(Sketcher.Constraint("Coincident", 3, 1, 4, 1))
sketch2.addConstraint(Sketcher.Constraint("Coincident", 4, 2, 5, 2))
sketch2.addConstraint(Sketcher.Constraint("Coincident", 9, 1, 10, 1))
sketch2.addConstraint(Sketcher.Constraint("Coincident", 10, 2, 11, 2))
sketch2.addConstraint(Sketcher.Constraint("Coincident", 12, 2, 13, 1))
sketch2.addConstraint(Sketcher.Constraint("Coincident", 13, 2, 14, 1))
sketch2.addConstraint(Sketcher.Constraint("Coincident", 14, 2, 15, 1))
sketch2.addConstraint(Sketcher.Constraint("Coincident", 15, 2, 16, 1))
sketch2.addConstraint(Sketcher.Constraint("Coincident", 16, 2, 17, 1))
sketch2.addConstraint(Sketcher.Constraint("Coincident", 17, 2, 18, 1))
sketch2.addConstraint(Sketcher.Constraint("Coincident", 18, 2, 19, 1))
sketch2.addConstraint(Sketcher.Constraint("Coincident", 19, 2, 20, 1))
sketch2.addConstraint(Sketcher.Constraint("Coincident", 20, 2, 21, 1))
sketch2.addConstraint(Sketcher.Constraint("Coincident", 21, 2, 22, 1))
sketch2.addConstraint(Sketcher.Constraint("Coincident", 22, 2, 12, 1))
sketch2.addConstraint(Sketcher.Constraint("Coincident", 23, 2, 24, 1))
sketch2.addConstraint(Sketcher.Constraint("Coincident", 24, 2, 25, 1))
sketch2.addConstraint(Sketcher.Constraint("Coincident", 25, 2, 26, 1))
sketch2.addConstraint(Sketcher.Constraint("Coincident", 26, 2, 27, 1))
sketch2.addConstraint(Sketcher.Constraint("Coincident", 27, 2, 28, 1))
sketch2.addConstraint(Sketcher.Constraint("Coincident", 28, 2, 29, 1))
sketch2.addConstraint(Sketcher.Constraint("Coincident", 29, 2, 30, 1))
sketch2.addConstraint(Sketcher.Constraint("Coincident", 30, 2, 31, 1))
sketch2.addConstraint(Sketcher.Constraint("Coincident", 31, 2, 32, 1))
sketch2.addConstraint(Sketcher.Constraint("Coincident", 32, 2, 23, 1))
sketch2.addConstraint(Sketcher.Constraint("Horizontal", 12))
sketch2.addConstraint(Sketcher.Constraint("Horizontal", 15))
sketch2.addConstraint(Sketcher.Constraint("Vertical", 17))
sketch2.addConstraint(Sketcher.Constraint("Horizontal", 18))
sketch2.addConstraint(Sketcher.Constraint("Vertical", 19))
sketch2.addConstraint(Sketcher.Constraint("Horizontal", 20))
sketch2.addConstraint(Sketcher.Constraint("Vertical", 21))
sketch2.addConstraint(Sketcher.Constraint("Horizontal", 23))
sketch2.addConstraint(Sketcher.Constraint("Vertical", 24))
sketch2.addConstraint(Sketcher.Constraint("Horizontal", 25))
sketch2.addConstraint(Sketcher.Constraint("Vertical", 26))
sketch2.addConstraint(Sketcher.Constraint("Horizontal", 27))
sketch2.addConstraint(Sketcher.Constraint("Vertical", 28))
sketch2.addConstraint(Sketcher.Constraint("Horizontal", 29))
sketch2.addConstraint(Sketcher.Constraint("Vertical", 30))
sketch2.addConstraint(Sketcher.Constraint("Horizontal", 31))
sketch2.addConstraint(Sketcher.Constraint("Vertical", 32))
sketch2.addConstraint(Sketcher.Constraint("Symmetric", 17, 2, 20, 2, -1))
sketch2.addConstraint(Sketcher.Constraint("Symmetric", 15, 2, 22, 2, -1))
sketch2.addConstraint(Sketcher.Constraint("Horizontal", 15, 2, 17, 2))
sketch2.addConstraint(Sketcher.Constraint("Horizontal", 18, 2, 24, 2))
sketch2.addConstraint(Sketcher.Constraint("Horizontal", 22, 2, 26, 2))
sketch2.addConstraint(Sketcher.Constraint("Vertical", 28, 2, 31, 2))
sketch2.addConstraint(Sketcher.Constraint("Equal", 20, 27))
sketch2.addConstraint(Sketcher.Constraint("Equal", 4, 24))
sketch2.addConstraint(Sketcher.Constraint("Equal", 24, 30))
sketch2.addConstraint(Sketcher.Constraint("DistanceY", 19, 2, 19, 1, Q("6 mm")))
sketch2.addConstraint(Sketcher.Constraint("DistanceX", 32, 2, 14, 2, Q("2.25 mm")))
sketch2.addConstraint(Sketcher.Constraint("DistanceX", 12, 2, 10, 2, Q("9.375 mm")))
sketch2.addConstraint(Sketcher.Constraint("DistanceX", 15, 2, 13, 2, Q("1.375 mm")))
sketch2.addConstraint(Sketcher.Constraint("DistanceX", 15, 1, 15, 2, Q("0.967391 mm")))
sketch2.addConstraint(Sketcher.Constraint("DistanceX", 23, 2, 23, 1, Q("2.521739 mm")))
sketch2.addConstraint(Sketcher.Constraint("Distance", 14, Q("3.70632 mm")))
sketch2.addConstraint(Sketcher.Constraint("DistanceX", 12, 2, 12, 1, Q("1.027174 mm")))
sketch2.addConstraint(Sketcher.Constraint("DistanceX", 18, 1, 18, 2, Q("0.869565 mm")))
sketch2.addConstraint(Sketcher.Constraint("DistanceX", 29, 2, 29, 1, Q("2.388587 mm")))
sketch2.addConstraint(Sketcher.Constraint("DistanceY", 17, 1, 17, 2, Q("2.830163 mm")))
sketch2.addConstraint(Sketcher.Constraint("DistanceY", 21, 1, 21, 2, Q("2.942935 mm")))
sketch2.addConstraint(Sketcher.Constraint("DistanceY", 28, 1, 28, 2, Q("2.695652 mm")))
sketch2.addConstraint(Sketcher.Constraint("DistanceX", 15, 2, 18, 2, Q("3.043478 mm")))
pocket1 = body.newObject("PartDesign::Pocket", "Pocket")
pocket1.Profile = sketch2
pocket1.Length = 1
pocket1.Reversed = True

doc.recompute()
